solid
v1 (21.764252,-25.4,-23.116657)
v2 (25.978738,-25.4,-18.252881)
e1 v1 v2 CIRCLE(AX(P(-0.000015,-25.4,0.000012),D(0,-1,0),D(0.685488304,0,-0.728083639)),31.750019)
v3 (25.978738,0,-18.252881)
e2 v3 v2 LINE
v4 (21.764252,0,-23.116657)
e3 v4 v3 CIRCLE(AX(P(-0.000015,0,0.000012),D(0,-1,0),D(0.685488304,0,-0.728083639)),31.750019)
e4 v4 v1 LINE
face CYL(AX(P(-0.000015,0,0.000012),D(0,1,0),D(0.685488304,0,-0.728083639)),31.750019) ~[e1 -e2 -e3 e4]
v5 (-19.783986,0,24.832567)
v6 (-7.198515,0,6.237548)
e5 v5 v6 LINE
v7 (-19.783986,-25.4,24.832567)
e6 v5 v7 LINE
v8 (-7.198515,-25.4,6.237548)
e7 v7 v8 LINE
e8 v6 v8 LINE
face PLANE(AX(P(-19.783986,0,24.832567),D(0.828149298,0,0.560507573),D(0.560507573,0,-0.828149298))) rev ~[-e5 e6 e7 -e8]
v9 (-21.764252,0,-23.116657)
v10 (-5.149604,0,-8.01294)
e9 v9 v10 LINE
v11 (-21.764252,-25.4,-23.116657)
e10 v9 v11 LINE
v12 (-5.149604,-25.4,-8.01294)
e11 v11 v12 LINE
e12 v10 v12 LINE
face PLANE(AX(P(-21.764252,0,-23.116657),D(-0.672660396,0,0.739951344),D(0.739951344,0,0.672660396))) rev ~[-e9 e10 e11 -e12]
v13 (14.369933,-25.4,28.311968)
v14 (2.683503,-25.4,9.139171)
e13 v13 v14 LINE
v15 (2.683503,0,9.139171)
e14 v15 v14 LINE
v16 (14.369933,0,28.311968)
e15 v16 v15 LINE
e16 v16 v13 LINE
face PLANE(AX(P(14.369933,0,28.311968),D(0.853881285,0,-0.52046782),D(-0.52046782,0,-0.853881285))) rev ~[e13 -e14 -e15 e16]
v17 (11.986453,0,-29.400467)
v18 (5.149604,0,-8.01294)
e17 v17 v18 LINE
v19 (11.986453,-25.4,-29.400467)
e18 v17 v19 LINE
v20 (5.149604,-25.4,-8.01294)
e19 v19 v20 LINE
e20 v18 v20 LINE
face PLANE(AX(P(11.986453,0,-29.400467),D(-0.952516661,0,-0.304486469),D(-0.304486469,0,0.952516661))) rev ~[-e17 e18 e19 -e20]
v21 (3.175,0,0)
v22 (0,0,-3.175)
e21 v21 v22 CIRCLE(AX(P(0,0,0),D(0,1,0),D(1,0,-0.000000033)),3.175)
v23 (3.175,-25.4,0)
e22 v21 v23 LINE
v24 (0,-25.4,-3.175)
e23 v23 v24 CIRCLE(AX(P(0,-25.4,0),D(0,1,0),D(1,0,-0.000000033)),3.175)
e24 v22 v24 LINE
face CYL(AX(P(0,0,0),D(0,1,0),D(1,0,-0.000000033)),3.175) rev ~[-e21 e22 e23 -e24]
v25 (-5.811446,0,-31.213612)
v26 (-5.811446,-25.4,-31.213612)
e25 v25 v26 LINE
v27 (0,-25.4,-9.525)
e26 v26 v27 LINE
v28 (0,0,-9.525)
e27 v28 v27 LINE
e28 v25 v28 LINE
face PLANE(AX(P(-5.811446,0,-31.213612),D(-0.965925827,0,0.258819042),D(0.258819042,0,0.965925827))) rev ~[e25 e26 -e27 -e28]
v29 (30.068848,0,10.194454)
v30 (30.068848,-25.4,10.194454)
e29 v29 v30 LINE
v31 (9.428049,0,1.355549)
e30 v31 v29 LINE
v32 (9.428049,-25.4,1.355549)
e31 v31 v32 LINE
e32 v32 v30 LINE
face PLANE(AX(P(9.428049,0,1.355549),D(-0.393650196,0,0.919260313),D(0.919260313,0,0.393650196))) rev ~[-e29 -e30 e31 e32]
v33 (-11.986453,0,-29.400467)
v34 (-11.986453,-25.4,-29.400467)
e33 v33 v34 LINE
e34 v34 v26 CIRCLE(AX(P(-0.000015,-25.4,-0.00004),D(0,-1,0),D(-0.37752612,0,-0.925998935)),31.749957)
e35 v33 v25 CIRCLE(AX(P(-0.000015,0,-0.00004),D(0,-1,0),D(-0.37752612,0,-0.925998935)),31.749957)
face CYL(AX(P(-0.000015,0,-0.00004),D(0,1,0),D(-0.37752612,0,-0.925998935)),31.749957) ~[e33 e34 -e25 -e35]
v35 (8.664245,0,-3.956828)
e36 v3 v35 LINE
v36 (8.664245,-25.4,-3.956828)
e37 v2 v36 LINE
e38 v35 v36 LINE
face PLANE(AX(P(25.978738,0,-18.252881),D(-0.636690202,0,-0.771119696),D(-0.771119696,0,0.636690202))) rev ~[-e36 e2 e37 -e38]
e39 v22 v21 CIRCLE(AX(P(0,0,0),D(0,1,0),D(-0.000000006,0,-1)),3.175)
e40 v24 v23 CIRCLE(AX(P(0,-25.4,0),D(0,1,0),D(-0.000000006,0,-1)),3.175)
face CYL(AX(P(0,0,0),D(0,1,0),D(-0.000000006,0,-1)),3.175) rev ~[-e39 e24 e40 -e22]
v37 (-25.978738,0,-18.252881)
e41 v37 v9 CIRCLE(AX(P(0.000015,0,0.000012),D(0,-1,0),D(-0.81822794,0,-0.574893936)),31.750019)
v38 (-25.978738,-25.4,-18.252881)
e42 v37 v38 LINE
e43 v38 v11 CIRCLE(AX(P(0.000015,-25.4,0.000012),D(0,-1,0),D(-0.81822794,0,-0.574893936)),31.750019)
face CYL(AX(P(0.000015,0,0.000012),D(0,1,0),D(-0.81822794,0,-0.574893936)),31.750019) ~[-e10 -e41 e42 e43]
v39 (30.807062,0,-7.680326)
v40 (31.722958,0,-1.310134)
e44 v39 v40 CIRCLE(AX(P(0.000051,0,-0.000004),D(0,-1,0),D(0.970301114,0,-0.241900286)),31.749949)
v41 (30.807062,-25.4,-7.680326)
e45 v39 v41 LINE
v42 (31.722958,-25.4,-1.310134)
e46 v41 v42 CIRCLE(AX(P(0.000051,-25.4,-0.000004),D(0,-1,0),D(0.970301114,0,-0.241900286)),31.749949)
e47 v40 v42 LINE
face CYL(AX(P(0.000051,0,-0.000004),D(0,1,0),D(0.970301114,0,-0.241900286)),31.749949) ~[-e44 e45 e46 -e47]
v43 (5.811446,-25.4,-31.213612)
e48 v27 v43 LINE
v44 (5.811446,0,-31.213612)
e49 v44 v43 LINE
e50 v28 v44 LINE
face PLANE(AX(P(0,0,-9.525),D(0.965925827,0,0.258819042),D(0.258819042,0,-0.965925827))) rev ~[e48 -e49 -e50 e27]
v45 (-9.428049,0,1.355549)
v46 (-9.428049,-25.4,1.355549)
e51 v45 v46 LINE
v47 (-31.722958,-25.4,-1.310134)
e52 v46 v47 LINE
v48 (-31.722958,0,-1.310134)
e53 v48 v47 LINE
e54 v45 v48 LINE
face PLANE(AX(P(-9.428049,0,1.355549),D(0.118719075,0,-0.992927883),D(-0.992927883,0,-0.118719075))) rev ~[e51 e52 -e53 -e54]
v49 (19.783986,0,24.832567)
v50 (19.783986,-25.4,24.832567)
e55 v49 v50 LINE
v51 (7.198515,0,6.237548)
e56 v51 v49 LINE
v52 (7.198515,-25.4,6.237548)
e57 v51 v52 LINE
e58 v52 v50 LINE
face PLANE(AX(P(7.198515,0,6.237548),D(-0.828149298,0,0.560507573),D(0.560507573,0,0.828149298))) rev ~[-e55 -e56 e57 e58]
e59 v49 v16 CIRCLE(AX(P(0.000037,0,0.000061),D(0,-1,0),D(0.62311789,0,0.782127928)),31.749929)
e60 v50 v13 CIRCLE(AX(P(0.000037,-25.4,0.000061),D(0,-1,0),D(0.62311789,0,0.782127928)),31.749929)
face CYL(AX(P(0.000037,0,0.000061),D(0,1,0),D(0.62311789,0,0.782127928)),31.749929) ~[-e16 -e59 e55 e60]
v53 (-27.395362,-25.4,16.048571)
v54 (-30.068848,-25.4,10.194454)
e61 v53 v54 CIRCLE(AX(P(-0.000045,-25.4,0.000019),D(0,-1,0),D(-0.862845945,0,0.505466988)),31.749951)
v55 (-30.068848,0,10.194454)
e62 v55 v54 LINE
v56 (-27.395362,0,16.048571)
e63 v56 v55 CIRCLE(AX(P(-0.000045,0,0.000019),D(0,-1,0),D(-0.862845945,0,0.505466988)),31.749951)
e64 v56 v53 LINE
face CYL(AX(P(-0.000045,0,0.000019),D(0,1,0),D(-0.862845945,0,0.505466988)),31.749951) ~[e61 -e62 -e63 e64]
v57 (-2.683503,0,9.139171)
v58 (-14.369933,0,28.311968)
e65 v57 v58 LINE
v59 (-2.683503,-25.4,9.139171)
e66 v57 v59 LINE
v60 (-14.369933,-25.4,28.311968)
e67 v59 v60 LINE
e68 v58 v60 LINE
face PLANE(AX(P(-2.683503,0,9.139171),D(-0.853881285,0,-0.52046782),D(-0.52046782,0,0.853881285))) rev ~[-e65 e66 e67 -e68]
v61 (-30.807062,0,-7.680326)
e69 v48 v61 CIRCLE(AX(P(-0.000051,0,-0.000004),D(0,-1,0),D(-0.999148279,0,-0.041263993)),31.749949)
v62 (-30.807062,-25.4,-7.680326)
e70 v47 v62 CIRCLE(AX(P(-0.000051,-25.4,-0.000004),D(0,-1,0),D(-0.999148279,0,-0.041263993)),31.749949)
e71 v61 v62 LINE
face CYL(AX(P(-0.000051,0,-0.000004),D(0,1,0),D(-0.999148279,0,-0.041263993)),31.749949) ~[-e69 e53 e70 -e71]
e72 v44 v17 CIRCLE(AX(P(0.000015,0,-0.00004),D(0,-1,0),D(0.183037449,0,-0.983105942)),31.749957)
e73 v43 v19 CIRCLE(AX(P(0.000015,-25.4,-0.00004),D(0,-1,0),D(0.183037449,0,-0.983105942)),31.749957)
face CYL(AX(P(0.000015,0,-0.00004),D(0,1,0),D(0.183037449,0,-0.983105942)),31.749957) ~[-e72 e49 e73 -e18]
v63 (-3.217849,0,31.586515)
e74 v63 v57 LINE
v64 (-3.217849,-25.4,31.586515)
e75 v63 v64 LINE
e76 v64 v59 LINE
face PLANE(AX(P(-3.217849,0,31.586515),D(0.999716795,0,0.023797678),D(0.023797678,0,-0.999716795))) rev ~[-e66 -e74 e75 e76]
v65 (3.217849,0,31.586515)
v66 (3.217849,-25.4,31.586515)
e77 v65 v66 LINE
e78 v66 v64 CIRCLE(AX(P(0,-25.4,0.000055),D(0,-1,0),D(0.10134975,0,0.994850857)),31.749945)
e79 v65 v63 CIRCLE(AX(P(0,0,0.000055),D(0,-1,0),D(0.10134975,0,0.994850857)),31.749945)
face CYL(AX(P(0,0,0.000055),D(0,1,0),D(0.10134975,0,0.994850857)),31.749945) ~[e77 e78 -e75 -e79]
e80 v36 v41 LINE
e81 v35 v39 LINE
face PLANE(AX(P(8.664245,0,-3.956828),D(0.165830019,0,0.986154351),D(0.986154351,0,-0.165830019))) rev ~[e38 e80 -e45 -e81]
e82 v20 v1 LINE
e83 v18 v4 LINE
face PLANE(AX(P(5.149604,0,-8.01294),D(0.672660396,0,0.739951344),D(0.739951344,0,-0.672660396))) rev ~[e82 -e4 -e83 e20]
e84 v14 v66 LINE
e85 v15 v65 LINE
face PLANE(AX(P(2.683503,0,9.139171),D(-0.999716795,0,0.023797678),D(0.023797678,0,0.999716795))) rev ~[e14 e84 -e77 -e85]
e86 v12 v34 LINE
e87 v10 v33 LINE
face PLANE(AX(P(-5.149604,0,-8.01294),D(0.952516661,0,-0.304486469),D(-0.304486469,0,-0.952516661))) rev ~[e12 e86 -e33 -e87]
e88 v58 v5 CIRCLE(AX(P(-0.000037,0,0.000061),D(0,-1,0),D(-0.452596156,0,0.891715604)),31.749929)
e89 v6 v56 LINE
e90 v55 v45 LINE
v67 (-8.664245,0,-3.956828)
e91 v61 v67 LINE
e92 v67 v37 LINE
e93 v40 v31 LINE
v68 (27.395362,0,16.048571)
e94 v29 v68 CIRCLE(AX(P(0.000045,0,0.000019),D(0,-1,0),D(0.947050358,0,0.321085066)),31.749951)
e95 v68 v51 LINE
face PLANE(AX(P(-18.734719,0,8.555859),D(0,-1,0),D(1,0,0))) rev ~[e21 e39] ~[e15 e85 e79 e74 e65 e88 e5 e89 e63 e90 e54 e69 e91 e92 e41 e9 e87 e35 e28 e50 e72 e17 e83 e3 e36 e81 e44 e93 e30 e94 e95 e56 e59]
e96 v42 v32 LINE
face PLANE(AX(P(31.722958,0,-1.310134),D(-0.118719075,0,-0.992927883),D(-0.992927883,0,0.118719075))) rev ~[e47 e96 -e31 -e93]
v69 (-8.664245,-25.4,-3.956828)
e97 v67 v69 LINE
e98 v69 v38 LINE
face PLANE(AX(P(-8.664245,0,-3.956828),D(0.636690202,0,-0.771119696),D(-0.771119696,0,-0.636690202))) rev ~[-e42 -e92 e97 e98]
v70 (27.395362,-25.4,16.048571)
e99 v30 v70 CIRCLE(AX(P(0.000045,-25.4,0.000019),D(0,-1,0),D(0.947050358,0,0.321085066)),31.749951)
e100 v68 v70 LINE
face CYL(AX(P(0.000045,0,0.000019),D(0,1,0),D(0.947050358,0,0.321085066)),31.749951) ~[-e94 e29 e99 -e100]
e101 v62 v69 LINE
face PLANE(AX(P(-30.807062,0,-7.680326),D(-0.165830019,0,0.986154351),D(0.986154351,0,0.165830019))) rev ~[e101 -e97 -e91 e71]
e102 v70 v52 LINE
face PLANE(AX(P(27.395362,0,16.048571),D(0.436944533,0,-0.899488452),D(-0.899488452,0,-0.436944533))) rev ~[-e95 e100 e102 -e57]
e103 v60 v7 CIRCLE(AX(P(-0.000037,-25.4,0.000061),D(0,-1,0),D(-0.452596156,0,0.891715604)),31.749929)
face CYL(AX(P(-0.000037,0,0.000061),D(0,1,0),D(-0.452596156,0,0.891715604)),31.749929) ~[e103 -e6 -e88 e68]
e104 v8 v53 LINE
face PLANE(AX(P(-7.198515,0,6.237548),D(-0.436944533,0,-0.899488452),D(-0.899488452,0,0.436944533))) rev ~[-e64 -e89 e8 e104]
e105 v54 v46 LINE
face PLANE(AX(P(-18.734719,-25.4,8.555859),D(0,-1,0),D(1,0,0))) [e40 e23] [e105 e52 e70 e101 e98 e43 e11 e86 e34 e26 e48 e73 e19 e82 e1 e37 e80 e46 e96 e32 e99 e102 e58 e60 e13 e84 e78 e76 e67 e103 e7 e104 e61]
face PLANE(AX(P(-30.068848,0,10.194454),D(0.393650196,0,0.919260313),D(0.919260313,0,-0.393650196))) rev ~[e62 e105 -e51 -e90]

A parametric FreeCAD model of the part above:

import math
import FreeCAD as App
import Part
import Sketcher
Q = App.Units.Quantity

doc = App.newDocument("Part")
params = doc.addObject("Spreadsheet::Sheet", "Params")
for row, (alias, value) in enumerate([
    ("sketch1_radius", "0.125 in"),
    ("sketch1_radius2", "0.125 in"),
    ("pad1_length", "1 in"),
], start=1):
    params.set(f"A{row}", alias)
    params.set(f"B{row}", "=" + value)
    params.setAlias(f"B{row}", alias)

body = doc.addObject("PartDesign::Body", "Body")

# Sketch on XZ plane
sketch1 = body.newObject("Sketcher::SketchObject", "Sketch")
sketch1.AttachmentSupport = (doc.getObject("XZ_Plane"), [""])
sketch1.MapMode = "FlatFace"
sketch1.addGeometry([
    Part.LineSegment(App.Vector(-7.198515, 6.237548, 0), App.Vector(-27.395362, 16.048571, 0)),  # 0
    Part.ArcOfCircle(Part.Circle(App.Vector(-0.000045, 0.000019, 0), App.Vector(0, 0, 1), 31.749951), math.radians(149.637643), math.radians(161.271442)),  # 1
    Part.LineSegment(App.Vector(-30.068848, 10.194454, 0), App.Vector(-9.428049, 1.355549, 0)),  # 2
    Part.LineSegment(App.Vector(-9.428049, 1.355549, 0), App.Vector(-31.722958, -1.310134, 0)),  # 3
    Part.ArcOfCircle(Part.Circle(App.Vector(-0.000051, -0.000004, 0), App.Vector(0, 0, 1), 31.749949), math.radians(-177.635076), math.radians(-166.001276)),  # 4
    Part.LineSegment(App.Vector(-30.807062, -7.680326, 0), App.Vector(-8.664245, -3.956828, 0)),  # 5
    Part.LineSegment(App.Vector(-8.664245, -3.956828, 0), App.Vector(-25.978738, -18.252881, 0)),  # 6
    Part.ArcOfCircle(Part.Circle(App.Vector(0.000015, 0.000012, 0), App.Vector(0, 0, 1), 31.750019), math.radians(-144.907795), math.radians(-133.274022)),  # 7
    Part.LineSegment(App.Vector(-21.764252, -23.116657, 0), App.Vector(-5.149604, -8.01294, 0)),  # 8
    Part.LineSegment(App.Vector(-5.149604, -8.01294, 0), App.Vector(-11.986453, -29.400467, 0)),  # 9
    Part.ArcOfCircle(Part.Circle(App.Vector(-0.000015, -0.00004, 0), App.Vector(0, 0, 1), 31.749957), math.radians(-112.180529), math.radians(-100.546733)),  # 10
    Part.LineSegment(App.Vector(-5.811446, -31.213612, 0), App.Vector(0, -9.525, 0)),  # 11
    Part.LineSegment(App.Vector(0, -9.525, 0), App.Vector(5.811446, -31.213612, 0)),  # 12
    Part.ArcOfCircle(Part.Circle(App.Vector(0.000015, -0.00004, 0), App.Vector(0, 0, 1), 31.749957), math.radians(-79.453267), math.radians(-67.819471)),  # 13
    Part.LineSegment(App.Vector(11.986453, -29.400467, 0), App.Vector(5.149604, -8.01294, 0)),  # 14
    Part.LineSegment(App.Vector(5.149604, -8.01294, 0), App.Vector(21.764252, -23.116657, 0)),  # 15
    Part.ArcOfCircle(Part.Circle(App.Vector(-0.000015, 0.000012, 0), App.Vector(0, 0, 1), 31.750019), math.radians(-46.725978), math.radians(-35.092205)),  # 16
    Part.LineSegment(App.Vector(25.978738, -18.252881, 0), App.Vector(8.664245, -3.956828, 0)),  # 17
    Part.LineSegment(App.Vector(8.664245, -3.956828, 0), App.Vector(30.807062, -7.680326, 0)),  # 18
    Part.ArcOfCircle(Part.Circle(App.Vector(0.000051, -0.000004, 0), App.Vector(0, 0, 1), 31.749949), math.radians(-13.998724), math.radians(-2.364924)),  # 19
    Part.LineSegment(App.Vector(31.722958, -1.310134, 0), App.Vector(9.428049, 1.355549, 0)),  # 20
    Part.LineSegment(App.Vector(9.428049, 1.355549, 0), App.Vector(30.068848, 10.194454, 0)),  # 21
    Part.ArcOfCircle(Part.Circle(App.Vector(0.000045, 0.000019, 0), App.Vector(0, 0, 1), 31.749951), math.radians(18.728558), math.radians(30.362357)),  # 22
    Part.LineSegment(App.Vector(27.395362, 16.048571, 0), App.Vector(7.198515, 6.237548, 0)),  # 23
    Part.LineSegment(App.Vector(7.198515, 6.237548, 0), App.Vector(19.783986, 24.832567, 0)),  # 24
    Part.ArcOfCircle(Part.Circle(App.Vector(0.000037, 0.000061, 0), App.Vector(0, 0, 1), 31.749929), math.radians(51.455821), math.radians(63.089627)),  # 25
    Part.LineSegment(App.Vector(14.369933, 28.311968, 0), App.Vector(2.683503, 9.139171, 0)),  # 26
    Part.LineSegment(App.Vector(2.683503, 9.139171, 0), App.Vector(3.217849, 31.586515, 0)),  # 27
    Part.ArcOfCircle(Part.Circle(App.Vector(0, 0.000055, 0), App.Vector(0, 0, 1), 31.749945), math.radians(84.1831), math.radians(95.8169)),  # 28
    Part.LineSegment(App.Vector(-3.217849, 31.586515, 0), App.Vector(-2.683503, 9.139171, 0)),  # 29
    Part.LineSegment(App.Vector(-2.683503, 9.139171, 0), App.Vector(-14.369933, 28.311968, 0)),  # 30
    Part.ArcOfCircle(Part.Circle(App.Vector(-0.000037, 0.000061, 0), App.Vector(0, 0, 1), 31.749929), math.radians(116.910373), math.radians(128.544179)),  # 31
    Part.LineSegment(App.Vector(-19.783986, 24.832567, 0), App.Vector(-7.198515, 6.237548, 0)),  # 32
    Part.ArcOfCircle(Part.Circle(App.Vector(0, 0, 0), App.Vector(0, 0, 1), 3.175), math.radians(0), math.radians(270)),  # 33
    Part.ArcOfCircle(Part.Circle(App.Vector(0, 0, 0), App.Vector(0, 0, 1), 3.175), math.radians(-89.999998), math.radians(-0.000002)),  # 34
], False)
sketch1.addConstraint([
    Sketcher.Constraint("Coincident", 0, 2, 1, 1),
    Sketcher.Constraint("Coincident", 1, 2, 2, 1),
    Sketcher.Constraint("Coincident", 2, 2, 3, 1),
    Sketcher.Constraint("Coincident", 3, 2, 4, 1),
    Sketcher.Constraint("Coincident", 4, 2, 5, 1),
    Sketcher.Constraint("Coincident", 5, 2, 6, 1),
    Sketcher.Constraint("Coincident", 6, 2, 7, 1),
    Sketcher.Constraint("Coincident", 7, 2, 8, 1),
    Sketcher.Constraint("Coincident", 8, 2, 9, 1),
    Sketcher.Constraint("Coincident", 9, 2, 10, 1),
    Sketcher.Constraint("Coincident", 10, 2, 11, 1),
    Sketcher.Constraint("Coincident", 11, 2, 12, 1),
    Sketcher.Constraint("Coincident", 12, 2, 13, 1),
    Sketcher.Constraint("Coincident", 13, 2, 14, 1),
    Sketcher.Constraint("Coincident", 14, 2, 15, 1),
    Sketcher.Constraint("Coincident", 15, 2, 16, 1),
    Sketcher.Constraint("Coincident", 16, 2, 17, 1),
    Sketcher.Constraint("Coincident", 17, 2, 18, 1),
    Sketcher.Constraint("Coincident", 18, 2, 19, 1),
    Sketcher.Constraint("Coincident", 19, 2, 20, 1),
    Sketcher.Constraint("Coincident", 20, 2, 21, 1),
    Sketcher.Constraint("Coincident", 21, 2, 22, 1),
    Sketcher.Constraint("Coincident", 22, 2, 23, 1),
    Sketcher.Constraint("Coincident", 23, 2, 24, 1),
    Sketcher.Constraint("Coincident", 24, 2, 25, 1),
    Sketcher.Constraint("Coincident", 25, 2, 26, 1),
    Sketcher.Constraint("Coincident", 26, 2, 27, 1),
    Sketcher.Constraint("Coincident", 27, 2, 28, 1),
    Sketcher.Constraint("Coincident", 28, 2, 29, 1),
    Sketcher.Constraint("Coincident", 29, 2, 30, 1),
    Sketcher.Constraint("Coincident", 30, 2, 31, 1),
    Sketcher.Constraint("Coincident", 31, 2, 32, 1),
    Sketcher.Constraint("Coincident", 32, 2, 0, 1),
    Sketcher.Constraint("Coincident", 33, 1, 34, 2),
    Sketcher.Constraint("Coincident", 34, 1, 33, 2),
    Sketcher.Constraint("Coincident", 33, 3, -1, 1),
    Sketcher.Constraint("PointOnObject", 28, 3, -2),
    Sketcher.Constraint("PointOnObject", 11, 2, -2),
    Sketcher.Constraint("PointOnObject", 33, 1, -1),
    Sketcher.Constraint("PointOnObject", 34, 1, -2),
    Sketcher.Constraint("Radius", 33, Q("0.125 in")),
    Sketcher.Constraint("Radius", 34, Q("0.125 in")),
    Sketcher.Constraint("DistanceY", 11, 2, -1, 1, Q("0.375 in")),
    Sketcher.Constraint("Radius", 1, 31.749951),
    Sketcher.Constraint("Radius", 4, 31.749949),
    Sketcher.Constraint("Radius", 7, 31.750019),
    Sketcher.Constraint("Radius", 16, 31.750019),
    Sketcher.Constraint("Radius", 19, 31.749949),
    Sketcher.Constraint("Radius", 22, 31.749951),
    Sketcher.Constraint("Radius", 25, 31.749929),
    Sketcher.Constraint("Radius", 31, 31.749929),
    Sketcher.Constraint("DistanceY", 11, 2, 4, 3, Q("0.3749998 in")),
    Sketcher.Constraint("DistanceY", 11, 2, 19, 3, Q("0.3749998 in")),
    Sketcher.Constraint("Radius", 10, 31.749957),
    Sketcher.Constraint("Radius", 13, 31.749957),
    Sketcher.Constraint("Radius", 28, 31.749945),
    Sketcher.Constraint("DistanceX", 4, 2, 0, 2, 3.4117),
    Sketcher.Constraint("DistanceX", 5, 2, 1, 3, 8.6642),
    Sketcher.Constraint("DistanceY", 8, 2, 10, 3, 8.0129),
    Sketcher.Constraint("DistanceY", 8, 2, 13, 3, 8.0129),
    Sketcher.Constraint("DistanceX", 7, 2, 9, 2, 9.777799),
    Sketcher.Constraint("DistanceX", 5, 2, 10, 2, 2.852799),
    Sketcher.Constraint("DistanceX", 9, 2, 12, 2, 17.797899),
    Sketcher.Constraint("DistanceX", 10, 2, 13, 2, 17.797899),
    Sketcher.Constraint("DistanceY", 14, 2, 13, 3, 8.0129),
    Sketcher.Constraint("DistanceX", 13, 2, 15, 2, 9.777799),
    Sketcher.Constraint("DistanceX", 22, 3, 17, 2, 8.6642),
    Sketcher.Constraint("DistanceY", 18, 2, 17, 2, 3.723498),
    Sketcher.Constraint("DistanceX", 20, 2, 21, 2, 20.640799),
    Sketcher.Constraint("DistanceX", 22, 2, 18, 2, 3.4117),
    Sketcher.Constraint("DistanceY", 17, 2, 22, 2, 20.005399),
    Sketcher.Constraint("DistanceY", 20, 2, 23, 2, 4.881999),
    Sketcher.Constraint("DistanceY", 19, 2, 24, 2, 26.142701),
    Sketcher.Constraint("DistanceY", 24, 2, 25, 2, 3.479401),
    Sketcher.Constraint("DistanceY", 31, 2, 30, 2, 3.479401),
    Sketcher.Constraint("DistanceY", 2, 2, 32, 2, 4.881999),
    Sketcher.Constraint("DistanceX", 0, 2, -1, 1, 27.395362),
    Sketcher.Constraint("DistanceY", -1, 1, 0, 2, 16.048571),
    Sketcher.Constraint("DistanceX", 1, 2, -1, 1, 30.068848),
    Sketcher.Constraint("DistanceX", 2, 2, -1, 1, 9.428049),
    Sketcher.Constraint("DistanceY", -1, 1, 2, 2, 1.355549),
    Sketcher.Constraint("DistanceX", 6, 2, -1, 1, 25.978738),
    Sketcher.Constraint("DistanceY", 6, 2, -1, 1, 18.252881),
    Sketcher.Constraint("DistanceX", 7, 2, -1, 1, 21.764252),
    Sketcher.Constraint("DistanceY", 8, 2, -1, 1, 8.01294),
    Sketcher.Constraint("DistanceX", -1, 1, 15, 2, 21.764252),
    Sketcher.Constraint("DistanceY", 16, 2, -1, 1, 18.252881),
    Sketcher.Constraint("DistanceX", -1, 1, 18, 2, 30.807062),
    Sketcher.Constraint("DistanceX", -1, 1, 19, 2, 31.722958),
    Sketcher.Constraint("DistanceX", -1, 1, 20, 2, 9.428049),
    Sketcher.Constraint("DistanceY", -1, 1, 20, 2, 1.355549),
    Sketcher.Constraint("DistanceY", -1, 1, 22, 2, 16.048571),
    Sketcher.Constraint("DistanceY", -1, 1, 26, 2, 9.139171),
    Sketcher.Constraint("DistanceX", -1, 1, 27, 2, 3.217849),
    Sketcher.Constraint("DistanceX", 28, 2, -1, 1, 3.217849),
    Sketcher.Constraint("DistanceY", -1, 1, 29, 2, 9.139171),
    Sketcher.Constraint("DistanceY", -1, 1, 30, 2, 28.311968),
    Sketcher.Constraint("DistanceY", 31, 3, 0, 2, 16.04851),
    Sketcher.Constraint("DistanceX", 0, 2, 4, 3, 27.395311),
    Sketcher.Constraint("DistanceY", 16, 3, 0, 2, 16.048559),
    Sketcher.Constraint("DistanceX", 1, 2, 31, 3, 30.068811),
    Sketcher.Constraint("DistanceX", 3, 2, 1, 2, 1.65411),
    Sketcher.Constraint("DistanceX", 5, 2, 10, 3, 8.66423),
    Sketcher.Constraint("DistanceY", 5, 2, 31, 3, 3.956889),
    Sketcher.Constraint("DistanceY", 7, 2, 4, 2, 15.436331),
    Sketcher.Constraint("DistanceX", 5, 2, 8, 2, 3.514641),
    Sketcher.Constraint("DistanceX", 8, 2, 13, 3, 5.149619),
    Sketcher.Constraint("DistanceX", 13, 3, 14, 2, 5.149589),
    Sketcher.Constraint("DistanceX", 22, 3, 14, 2, 5.149559),
    Sketcher.Constraint("DistanceY", 13, 2, 15, 2, 6.28381),
    Sketcher.Constraint("DistanceX", 25, 3, 17, 2, 8.664208),
    Sketcher.Constraint("DistanceY", 17, 2, 25, 3, 3.956889),
    Sketcher.Constraint("DistanceX", 25, 3, 23, 2, 7.198478),
    Sketcher.Constraint("DistanceX", 31, 3, 26, 2, 2.68354),
    Sketcher.Constraint("DistanceX", 29, 2, 25, 3, 2.68354),
    Sketcher.Constraint("DistanceX", 32, 2, 31, 3, 7.198478),
    Sketcher.Constraint("Distance", 27, 22.453703),
])
sketch1.setExpression("Constraints[40]", "Params.sketch1_radius")
sketch1.setExpression("Constraints[41]", "Params.sketch1_radius2")
pad1 = body.newObject("PartDesign::Pad", "Pad")
pad1.Profile = sketch1
pad1.setExpression("Length", "Params.pad1_length")

doc.recompute()
